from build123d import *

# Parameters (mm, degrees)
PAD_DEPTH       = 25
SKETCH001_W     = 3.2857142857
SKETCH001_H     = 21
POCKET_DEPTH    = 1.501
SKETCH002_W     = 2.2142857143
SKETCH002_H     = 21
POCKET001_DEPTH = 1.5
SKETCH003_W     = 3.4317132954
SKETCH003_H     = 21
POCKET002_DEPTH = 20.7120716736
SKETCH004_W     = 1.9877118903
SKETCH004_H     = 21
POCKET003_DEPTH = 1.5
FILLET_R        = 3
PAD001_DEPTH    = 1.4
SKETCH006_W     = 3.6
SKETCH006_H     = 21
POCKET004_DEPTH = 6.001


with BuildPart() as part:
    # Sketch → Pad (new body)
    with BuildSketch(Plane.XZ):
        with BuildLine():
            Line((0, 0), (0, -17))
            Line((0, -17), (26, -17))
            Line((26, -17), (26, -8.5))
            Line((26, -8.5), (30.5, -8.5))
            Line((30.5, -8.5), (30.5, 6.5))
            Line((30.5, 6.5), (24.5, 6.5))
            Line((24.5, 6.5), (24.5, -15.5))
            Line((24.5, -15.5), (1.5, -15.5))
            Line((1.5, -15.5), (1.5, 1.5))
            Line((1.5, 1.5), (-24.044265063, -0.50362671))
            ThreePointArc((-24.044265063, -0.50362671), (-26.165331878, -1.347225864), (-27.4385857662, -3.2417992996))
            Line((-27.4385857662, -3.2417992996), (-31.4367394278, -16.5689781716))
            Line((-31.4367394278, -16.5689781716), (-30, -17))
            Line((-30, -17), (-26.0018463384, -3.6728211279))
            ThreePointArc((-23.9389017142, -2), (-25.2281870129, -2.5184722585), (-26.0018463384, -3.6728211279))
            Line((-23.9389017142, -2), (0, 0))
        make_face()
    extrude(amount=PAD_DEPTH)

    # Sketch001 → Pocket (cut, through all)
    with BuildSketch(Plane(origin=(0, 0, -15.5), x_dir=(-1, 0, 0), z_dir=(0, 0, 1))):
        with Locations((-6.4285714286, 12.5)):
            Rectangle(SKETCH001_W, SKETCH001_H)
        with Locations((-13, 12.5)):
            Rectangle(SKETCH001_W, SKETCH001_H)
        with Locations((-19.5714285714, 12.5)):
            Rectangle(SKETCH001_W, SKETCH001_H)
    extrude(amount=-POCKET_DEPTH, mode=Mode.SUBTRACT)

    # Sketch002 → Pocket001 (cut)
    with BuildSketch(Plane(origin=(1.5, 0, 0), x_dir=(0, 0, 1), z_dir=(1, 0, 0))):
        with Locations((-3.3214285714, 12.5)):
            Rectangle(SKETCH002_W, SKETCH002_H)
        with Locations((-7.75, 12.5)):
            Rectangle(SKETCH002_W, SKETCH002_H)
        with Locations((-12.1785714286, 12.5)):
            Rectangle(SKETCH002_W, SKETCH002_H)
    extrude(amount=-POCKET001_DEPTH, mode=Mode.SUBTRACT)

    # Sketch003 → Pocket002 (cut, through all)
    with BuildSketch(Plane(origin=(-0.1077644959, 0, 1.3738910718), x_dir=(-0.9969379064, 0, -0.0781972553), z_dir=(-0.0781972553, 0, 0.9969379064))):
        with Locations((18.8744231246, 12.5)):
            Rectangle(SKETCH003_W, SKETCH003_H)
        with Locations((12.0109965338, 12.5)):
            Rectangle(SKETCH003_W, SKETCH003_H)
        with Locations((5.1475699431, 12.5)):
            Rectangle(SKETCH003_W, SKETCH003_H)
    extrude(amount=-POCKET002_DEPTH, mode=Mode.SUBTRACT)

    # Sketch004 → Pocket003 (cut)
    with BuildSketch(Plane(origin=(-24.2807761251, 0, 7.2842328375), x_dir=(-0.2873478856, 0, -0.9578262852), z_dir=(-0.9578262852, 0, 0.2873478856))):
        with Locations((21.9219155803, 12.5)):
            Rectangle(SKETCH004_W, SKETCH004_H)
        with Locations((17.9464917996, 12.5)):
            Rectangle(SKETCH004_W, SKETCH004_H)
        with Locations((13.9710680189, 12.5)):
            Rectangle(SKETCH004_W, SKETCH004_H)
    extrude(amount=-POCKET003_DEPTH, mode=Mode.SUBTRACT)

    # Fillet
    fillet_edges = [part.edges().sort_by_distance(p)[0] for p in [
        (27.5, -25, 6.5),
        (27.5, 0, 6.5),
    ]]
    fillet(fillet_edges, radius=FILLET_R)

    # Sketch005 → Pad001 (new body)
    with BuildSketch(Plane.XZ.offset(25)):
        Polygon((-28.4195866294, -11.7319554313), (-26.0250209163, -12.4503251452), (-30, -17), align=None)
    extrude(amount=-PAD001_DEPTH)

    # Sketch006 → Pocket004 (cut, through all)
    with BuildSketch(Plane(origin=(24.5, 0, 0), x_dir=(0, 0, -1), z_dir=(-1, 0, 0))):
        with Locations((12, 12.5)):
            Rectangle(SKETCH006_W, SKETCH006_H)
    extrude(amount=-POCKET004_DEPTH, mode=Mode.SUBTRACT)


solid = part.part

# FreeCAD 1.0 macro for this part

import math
import FreeCAD as App
import Part
import Sketcher

V = App.Vector


def edges_at(feature, points):
    """Names of the edges that pass closest to the given points."""
    edges = feature.Shape.Edges
    near = lambda p: min(range(len(edges)), key=lambda i: edges[i].distToShape(Part.Vertex(*p))[0])
    return sorted({f"Edge{near(p) + 1}" for p in points})


def add_polygon(sketch, points):
    """Adds a closed chain of lines whose ends are joined by coincident constraints."""
    first, n = sketch.GeometryCount, len(points)
    for a, b in zip(points, points[1:] + points[:1]):
        sketch.addGeometry(Part.LineSegment(App.Vector(*a, 0), App.Vector(*b, 0)), False)
    for i in range(n):
        sketch.addConstraint(Sketcher.Constraint("Coincident", first + i, 2, first + (i + 1) % n, 1))

doc = App.newDocument("Part")
body = doc.addObject("PartDesign::Body", "Body")

# Sketch on XZ plane
sketch1 = body.newObject("Sketcher::SketchObject", "Sketch")
sketch1.AttachmentSupport = (doc.getObject("XZ_Plane"), [""])
sketch1.MapMode = "FlatFace"
sketch1.addGeometry([
    Part.LineSegment(V(0, 0, 0), V(0, -17, 0)),  # 0
    Part.LineSegment(V(0, -17, 0), V(26, -17, 0)),  # 1
    Part.LineSegment(V(26, -17, 0), V(26, -8.5, 0)),  # 2
    Part.LineSegment(V(26, -8.5, 0), V(30.5, -8.5, 0)),  # 3
    Part.LineSegment(V(30.5, -8.5, 0), V(30.5, 6.5, 0)),  # 4
    Part.LineSegment(V(30.5, 6.5, 0), V(24.5, 6.5, 0)),  # 5
    Part.LineSegment(V(24.5, 6.5, 0), V(24.5, -15.5, 0)),  # 6
    Part.LineSegment(V(24.5, -15.5, 0), V(1.5, -15.5, 0)),  # 7
    Part.LineSegment(V(1.5, -15.5, 0), V(1.5, 1.5, 0)),  # 8
    Part.LineSegment(V(1.5, 1.5, 0), V(-24.044265, -0.503627, 0)),  # 9
    Part.ArcOfCircle(Part.Circle(V(-23.742517, -4.35062, 0), V(0, 0, 1), 3.858809), math.radians(94.484951), math.radians(163.300756)),  # 10
    Part.LineSegment(V(-27.438586, -3.241799, 0), V(-31.436739, -16.568978, 0)),  # 11
    Part.LineSegment(V(-31.436739, -16.568978, 0), V(-30, -17, 0)),  # 12
    Part.LineSegment(V(-30, -17, 0), V(-26.001846, -3.672821, 0)),  # 13
    Part.ArcOfCircle(Part.Circle(V(-23.742517, -4.35062, 0), V(0, 0, 1), 2.358809), math.radians(94.775744), math.radians(163.300756)),  # 14
    Part.LineSegment(V(-23.938902, -2, 0), V(0, 0, 0)),  # 15
], False)
sketch1.addConstraint([
    Sketcher.Constraint("Coincident", 0, 2, 1, 1),
    Sketcher.Constraint("Coincident", 1, 2, 2, 1),
    Sketcher.Constraint("Coincident", 2, 2, 3, 1),
    Sketcher.Constraint("Coincident", 3, 2, 4, 1),
    Sketcher.Constraint("Coincident", 4, 2, 5, 1),
    Sketcher.Constraint("Coincident", 5, 2, 6, 1),
    Sketcher.Constraint("Coincident", 6, 2, 7, 1),
    Sketcher.Constraint("Coincident", 7, 2, 8, 1),
    Sketcher.Constraint("Coincident", 8, 2, 9, 1),
    Sketcher.Constraint("Tangent", 9, 2, 10, 1),
    Sketcher.Constraint("Tangent", 10, 2, 11, 1),
    Sketcher.Constraint("Coincident", 11, 2, 12, 1),
    Sketcher.Constraint("Coincident", 12, 2, 13, 1),
    Sketcher.Constraint("Tangent", 13, 2, 14, 2),
    Sketcher.Constraint("Tangent", 14, 1, 15, 1),
    Sketcher.Constraint("Coincident", 15, 2, 0, 1),
    Sketcher.Constraint("Vertical", 0),
    Sketcher.Constraint("Horizontal", 1),
    Sketcher.Constraint("Vertical", 2),
    Sketcher.Constraint("Horizontal", 3),
    Sketcher.Constraint("Vertical", 4),
    Sketcher.Constraint("Horizontal", 5),
    Sketcher.Constraint("Vertical", 6),
    Sketcher.Constraint("Horizontal", 7),
    Sketcher.Constraint("Vertical", 8),
    Sketcher.Constraint("Coincident", 15, 2, -1, 1),
    Sketcher.Constraint("Coincident", 14, 3, 10, 3),
    Sketcher.Constraint("Perpendicular", 11, 12),
    Sketcher.Constraint("Perpendicular", 12, 13),
    Sketcher.Constraint("Horizontal", 1, 2, 12, 2),
    Sketcher.Constraint("Equal", 0, 8),
    Sketcher.Constraint("DistanceX", 1, 1, 1, 2, 26.0),
    Sketcher.Constraint("DistanceX", 5, 2, 5, 1, 6.0),
    Sketcher.Constraint("DistanceX", 7, 2, 7, 1, 23.0),
    Sketcher.Constraint("DistanceY", 0, 2, 0, 1, 17.0),
    Sketcher.Constraint("DistanceY", 4, 1, 4, 2, 15.0),
    Sketcher.Constraint("DistanceY", 6, 2, 6, 1, 22.0),
    Sketcher.Constraint("DistanceX", 3, 1, 3, 2, 4.5),
    Sketcher.Constraint("DistanceY", 2, 1, 2, 2, 8.5),
    Sketcher.Constraint("DistanceX", 12, 2, -1, 1, 30.0),
    Sketcher.Constraint("DistanceY", 14, 1, -1, 1, 2.0),
    Sketcher.Constraint("Distance", 12, 1.5),
    Sketcher.Constraint("Radius", 10, 3.858809),
    Sketcher.Constraint("DistanceY", 10, 2, -1, 1, 3.241799),
])
pad1 = body.newObject("PartDesign::Pad", "Pad")
pad1.Profile = sketch1
pad1.Length = 25

# Sketch on XY plane
sketch2 = body.newObject("Sketcher::SketchObject", "Sketch001")
sketch2.AttachmentSupport = (doc.getObject("XY_Plane"), [""])
sketch2.MapMode = "FlatFace"
sketch2.AttachmentOffset = App.Placement(V(0, 0, -15.5), App.Rotation())
add_polygon(sketch2, [(8.071429, -23), (8.071429, -2), (4.785714, -2), (4.785714, -23)])  # lines 0-3
add_polygon(sketch2, [(14.642857, -23), (14.642857, -2), (11.357143, -2), (11.357143, -23)])  # lines 4-7
add_polygon(sketch2, [(21.214286, -23), (21.214286, -2), (17.928571, -2), (17.928571, -23)])  # lines 8-11
sketch2.addConstraint([
    Sketcher.Constraint("Vertical", 0),
    Sketcher.Constraint("Horizontal", 1),
    Sketcher.Constraint("Vertical", 2),
    Sketcher.Constraint("Horizontal", 3),
    Sketcher.Constraint("Vertical", 4),
    Sketcher.Constraint("Horizontal", 5),
    Sketcher.Constraint("Vertical", 6),
    Sketcher.Constraint("Horizontal", 7),
    Sketcher.Constraint("Vertical", 8),
    Sketcher.Constraint("Horizontal", 9),
    Sketcher.Constraint("Vertical", 10),
    Sketcher.Constraint("Horizontal", 11),
    Sketcher.Constraint("Horizontal", 1, 2, 4, 2),
    Sketcher.Constraint("Horizontal", 3, 2, 6, 2),
    Sketcher.Constraint("Horizontal", 5, 2, 8, 2),
    Sketcher.Constraint("Horizontal", 7, 2, 10, 2),
    Sketcher.Constraint("Equal", 3, 5),
    Sketcher.Constraint("Equal", 7, 9),
    Sketcher.Constraint("DistanceY", 0, 1, 0, 2, 21.0),
    Sketcher.Constraint("DistanceY", 0, 2, -1, 1, 2.0),
    Sketcher.Constraint("DistanceX", 1, 2, 1, 1, 3.285714),
    Sketcher.Constraint("DistanceX", -1, 1, 0, 2, 8.071429),
    Sketcher.Constraint("DistanceX", -1, 1, 9, 2, 17.928571),
    Sketcher.Constraint("DistanceX", 0, 2, 4, 2, 6.571429),
])
pocket1 = body.newObject("PartDesign::Pocket", "Pocket")
pocket1.Profile = sketch2
pocket1.Type = "ThroughAll"

# Sketch on YZ plane
sketch3 = body.newObject("Sketcher::SketchObject", "Sketch002")
sketch3.AttachmentSupport = (doc.getObject("YZ_Plane"), [""])
sketch3.MapMode = "FlatFace"
sketch3.AttachmentOffset = App.Placement(V(0, 0, 1.5), App.Rotation())
add_polygon(sketch3, [(-23, -4.428571), (-2, -4.428571), (-2, -2.214286), (-23, -2.214286)])  # lines 0-3
add_polygon(sketch3, [(-23, -8.857143), (-2, -8.857143), (-2, -6.642857), (-23, -6.642857)])  # lines 4-7
add_polygon(sketch3, [(-23, -13.285714), (-2, -13.285714), (-2, -11.071429), (-23, -11.071429)])  # lines 8-11
sketch3.addConstraint([
    Sketcher.Constraint("Horizontal", 0),
    Sketcher.Constraint("Vertical", 1),
    Sketcher.Constraint("Horizontal", 2),
    Sketcher.Constraint("Vertical", 3),
    Sketcher.Constraint("Horizontal", 4),
    Sketcher.Constraint("Vertical", 5),
    Sketcher.Constraint("Horizontal", 6),
    Sketcher.Constraint("Vertical", 7),
    Sketcher.Constraint("Horizontal", 8),
    Sketcher.Constraint("Vertical", 9),
    Sketcher.Constraint("Horizontal", 10),
    Sketcher.Constraint("Vertical", 11),
    Sketcher.Constraint("Vertical", 1, 2, 4, 2),
    Sketcher.Constraint("Vertical", 3, 2, 6, 2),
    Sketcher.Constraint("Vertical", 5, 2, 8, 2),
    Sketcher.Constraint("Vertical", 7, 2, 10, 2),
    Sketcher.Constraint("Equal", 3, 5),
    Sketcher.Constraint("Equal", 7, 9),
    Sketcher.Constraint("DistanceX", 0, 1, 0, 2, 21.0),
    Sketcher.Constraint("DistanceX", 0, 2, -1, 1, 2.0),
    Sketcher.Constraint("DistanceY", 1, 1, 1, 2, 2.214286),
    Sketcher.Constraint("DistanceY", 0, 2, -1, 1, 4.428571),
    Sketcher.Constraint("DistanceY", 9, 2, -1, 1, 11.071429),
    Sketcher.Constraint("DistanceY", 4, 2, 0, 2, 4.428571),
])
pocket2 = body.newObject("PartDesign::Pocket", "Pocket001")
pocket2.Profile = sketch3
pocket2.Length = 1.5

# Sketch on an angled plane
sketch4 = body.newObject("Sketcher::SketchObject", "Sketch003")
sketch4.Placement = App.Placement(V(-0.107764, 0, 1.373891), App.Rotation(V(-0.996937906, 0, -0.078197255), V(0, -0.999999999, 0), V(-0.078197255, 0, 0.996937906), "ZXY"))
add_polygon(sketch4, [(17.158566, 23), (17.158566, 2), (20.59028, 2), (20.59028, 23)])  # lines 0-3
add_polygon(sketch4, [(10.29514, 23), (10.29514, 2), (13.726853, 2), (13.726853, 23)])  # lines 4-7
add_polygon(sketch4, [(3.431713, 23), (3.431713, 2), (6.863427, 2), (6.863427, 23)])  # lines 8-11
sketch4.addConstraint([
    Sketcher.Constraint("Vertical", 0),
    Sketcher.Constraint("Horizontal", 1),
    Sketcher.Constraint("Vertical", 2),
    Sketcher.Constraint("Horizontal", 3),
    Sketcher.Constraint("Vertical", 4),
    Sketcher.Constraint("Horizontal", 5),
    Sketcher.Constraint("Vertical", 6),
    Sketcher.Constraint("Horizontal", 7),
    Sketcher.Constraint("Vertical", 8),
    Sketcher.Constraint("Horizontal", 9),
    Sketcher.Constraint("Vertical", 10),
    Sketcher.Constraint("Horizontal", 11),
    Sketcher.Constraint("Horizontal", 1, 2, 4, 2),
    Sketcher.Constraint("Horizontal", 3, 2, 6, 2),
    Sketcher.Constraint("Horizontal", 5, 2, 8, 2),
    Sketcher.Constraint("Horizontal", 7, 2, 10, 2),
    Sketcher.Constraint("Equal", 3, 5),
    Sketcher.Constraint("Equal", 7, 9),
    Sketcher.Constraint("DistanceY", 0, 2, 0, 1, 21.0),
    Sketcher.Constraint("DistanceY", -1, 1, 0, 2, 2.0),
    Sketcher.Constraint("DistanceX", 1, 1, 1, 2, 3.431713),
    Sketcher.Constraint("DistanceX", -1, 1, 1, 2, 20.59028),
    Sketcher.Constraint("DistanceX", -1, 1, 4, 2, 10.29514),
    Sketcher.Constraint("DistanceX", 8, 2, 5, 2, 10.29514),
])
pocket3 = body.newObject("PartDesign::Pocket", "Pocket002")
pocket3.Profile = sketch4
pocket3.Type = "ThroughAll"

# Sketch on an angled plane
sketch5 = body.newObject("Sketcher::SketchObject", "Sketch004")
sketch5.Placement = App.Placement(V(-24.280776, 0, 7.284233), App.Rotation(V(-0.287347886, 0, -0.957826285), V(0, -1, 0), V(-0.957826285, 0, 0.287347886), "ZXY"))
add_polygon(sketch5, [(20.92806, 23), (20.92806, 2), (22.915772, 2), (22.915772, 23)])  # lines 0-3
add_polygon(sketch5, [(16.952636, 23), (16.952636, 2), (18.940348, 2), (18.940348, 23)])  # lines 4-7
add_polygon(sketch5, [(12.977212, 23), (12.977212, 2), (14.964924, 2), (14.964924, 23)])  # lines 8-11
sketch5.addConstraint([
    Sketcher.Constraint("Vertical", 0),
    Sketcher.Constraint("Horizontal", 1),
    Sketcher.Constraint("Vertical", 2),
    Sketcher.Constraint("Horizontal", 3),
    Sketcher.Constraint("Vertical", 4),
    Sketcher.Constraint("Horizontal", 5),
    Sketcher.Constraint("Vertical", 6),
    Sketcher.Constraint("Horizontal", 7),
    Sketcher.Constraint("Vertical", 8),
    Sketcher.Constraint("Horizontal", 9),
    Sketcher.Constraint("Vertical", 10),
    Sketcher.Constraint("Horizontal", 11),
    Sketcher.Constraint("Horizontal", 1, 2, 4, 2),
    Sketcher.Constraint("Horizontal", 3, 2, 6, 2),
    Sketcher.Constraint("Horizontal", 5, 2, 8, 2),
    Sketcher.Constraint("Horizontal", 7, 2, 10, 2),
    Sketcher.Constraint("Equal", 3, 5),
    Sketcher.Constraint("Equal", 7, 9),
    Sketcher.Constraint("DistanceY", 0, 2, 0, 1, 21.0),
    Sketcher.Constraint("DistanceY", -1, 1, 0, 2, 2.0),
    Sketcher.Constraint("DistanceX", 1, 1, 1, 2, 1.987712),
    Sketcher.Constraint("DistanceX", -1, 1, 0, 2, 20.92806),
    Sketcher.Constraint("DistanceX", 5, 2, 0, 2, 1.987712),
    Sketcher.Constraint("DistanceX", 8, 2, 1, 2, 9.938559),
])
pocket4 = body.newObject("PartDesign::Pocket", "Pocket003")
pocket4.Profile = sketch5
pocket4.Length = 1.5
doc.recompute()

fillet = body.newObject("PartDesign::Fillet", "Fillet")
fillet.Base = (pocket4, edges_at(pocket4, [(27.5, -25, 6.5), (27.5, 0, 6.5)]))
fillet.Radius = 3

# Sketch on XZ plane
sketch6 = body.newObject("Sketcher::SketchObject", "Sketch005")
sketch6.AttachmentSupport = (doc.getObject("XZ_Plane"), [""])
sketch6.MapMode = "FlatFace"
sketch6.AttachmentOffset = App.Placement(V(0, 0, 25), App.Rotation())
add_polygon(sketch6, [(-26.025021, -12.450325), (-28.419587, -11.731955), (-30, -17)])  # lines 0-2
sketch6.addConstraint([
    Sketcher.Constraint("Perpendicular", 0, 1),
    Sketcher.Constraint("DistanceX", 1, 2, -1, 1, 30.0),
    Sketcher.Constraint("DistanceY", 1, 2, -1, 1, 17.0),
    Sketcher.Constraint("Distance", 0, 2.5),
    Sketcher.Constraint("Distance", 1, 5.5),
    Sketcher.Constraint("DistanceX", 2, 2, -1, 1, 26.025021),
])
pad2 = body.newObject("PartDesign::Pad", "Pad001")
pad2.Profile = sketch6
pad2.Length = 1.4
pad2.Reversed = True

# Sketch on YZ plane
sketch7 = body.newObject("Sketcher::SketchObject", "Sketch006")
sketch7.AttachmentSupport = (doc.getObject("YZ_Plane"), [""])
sketch7.MapMode = "FlatFace"
sketch7.AttachmentOffset = App.Placement(V(0, 0, 24.5), App.Rotation())
add_polygon(sketch7, [(-23, -10.2), (-2, -10.2), (-2, -13.8), (-23, -13.8)])  # lines 0-3
sketch7.addConstraint([
    Sketcher.Constraint("Horizontal", 0),
    Sketcher.Constraint("Vertical", 1),
    Sketcher.Constraint("Horizontal", 2),
    Sketcher.Constraint("Vertical", 3),
    Sketcher.Constraint("DistanceX", 0, 1, 0, 2, 21.0),
    Sketcher.Constraint("DistanceY", 1, 2, 1, 1, 3.6),
    Sketcher.Constraint("DistanceX", 0, 2, -1, 1, 2.0),
    Sketcher.Constraint("DistanceY", 0, 2, -1, 1, 10.2),
])
pocket5 = body.newObject("PartDesign::Pocket", "Pocket004")
pocket5.Profile = sketch7
pocket5.Type = "ThroughAll"
pocket5.Reversed = True

doc.recompute()
